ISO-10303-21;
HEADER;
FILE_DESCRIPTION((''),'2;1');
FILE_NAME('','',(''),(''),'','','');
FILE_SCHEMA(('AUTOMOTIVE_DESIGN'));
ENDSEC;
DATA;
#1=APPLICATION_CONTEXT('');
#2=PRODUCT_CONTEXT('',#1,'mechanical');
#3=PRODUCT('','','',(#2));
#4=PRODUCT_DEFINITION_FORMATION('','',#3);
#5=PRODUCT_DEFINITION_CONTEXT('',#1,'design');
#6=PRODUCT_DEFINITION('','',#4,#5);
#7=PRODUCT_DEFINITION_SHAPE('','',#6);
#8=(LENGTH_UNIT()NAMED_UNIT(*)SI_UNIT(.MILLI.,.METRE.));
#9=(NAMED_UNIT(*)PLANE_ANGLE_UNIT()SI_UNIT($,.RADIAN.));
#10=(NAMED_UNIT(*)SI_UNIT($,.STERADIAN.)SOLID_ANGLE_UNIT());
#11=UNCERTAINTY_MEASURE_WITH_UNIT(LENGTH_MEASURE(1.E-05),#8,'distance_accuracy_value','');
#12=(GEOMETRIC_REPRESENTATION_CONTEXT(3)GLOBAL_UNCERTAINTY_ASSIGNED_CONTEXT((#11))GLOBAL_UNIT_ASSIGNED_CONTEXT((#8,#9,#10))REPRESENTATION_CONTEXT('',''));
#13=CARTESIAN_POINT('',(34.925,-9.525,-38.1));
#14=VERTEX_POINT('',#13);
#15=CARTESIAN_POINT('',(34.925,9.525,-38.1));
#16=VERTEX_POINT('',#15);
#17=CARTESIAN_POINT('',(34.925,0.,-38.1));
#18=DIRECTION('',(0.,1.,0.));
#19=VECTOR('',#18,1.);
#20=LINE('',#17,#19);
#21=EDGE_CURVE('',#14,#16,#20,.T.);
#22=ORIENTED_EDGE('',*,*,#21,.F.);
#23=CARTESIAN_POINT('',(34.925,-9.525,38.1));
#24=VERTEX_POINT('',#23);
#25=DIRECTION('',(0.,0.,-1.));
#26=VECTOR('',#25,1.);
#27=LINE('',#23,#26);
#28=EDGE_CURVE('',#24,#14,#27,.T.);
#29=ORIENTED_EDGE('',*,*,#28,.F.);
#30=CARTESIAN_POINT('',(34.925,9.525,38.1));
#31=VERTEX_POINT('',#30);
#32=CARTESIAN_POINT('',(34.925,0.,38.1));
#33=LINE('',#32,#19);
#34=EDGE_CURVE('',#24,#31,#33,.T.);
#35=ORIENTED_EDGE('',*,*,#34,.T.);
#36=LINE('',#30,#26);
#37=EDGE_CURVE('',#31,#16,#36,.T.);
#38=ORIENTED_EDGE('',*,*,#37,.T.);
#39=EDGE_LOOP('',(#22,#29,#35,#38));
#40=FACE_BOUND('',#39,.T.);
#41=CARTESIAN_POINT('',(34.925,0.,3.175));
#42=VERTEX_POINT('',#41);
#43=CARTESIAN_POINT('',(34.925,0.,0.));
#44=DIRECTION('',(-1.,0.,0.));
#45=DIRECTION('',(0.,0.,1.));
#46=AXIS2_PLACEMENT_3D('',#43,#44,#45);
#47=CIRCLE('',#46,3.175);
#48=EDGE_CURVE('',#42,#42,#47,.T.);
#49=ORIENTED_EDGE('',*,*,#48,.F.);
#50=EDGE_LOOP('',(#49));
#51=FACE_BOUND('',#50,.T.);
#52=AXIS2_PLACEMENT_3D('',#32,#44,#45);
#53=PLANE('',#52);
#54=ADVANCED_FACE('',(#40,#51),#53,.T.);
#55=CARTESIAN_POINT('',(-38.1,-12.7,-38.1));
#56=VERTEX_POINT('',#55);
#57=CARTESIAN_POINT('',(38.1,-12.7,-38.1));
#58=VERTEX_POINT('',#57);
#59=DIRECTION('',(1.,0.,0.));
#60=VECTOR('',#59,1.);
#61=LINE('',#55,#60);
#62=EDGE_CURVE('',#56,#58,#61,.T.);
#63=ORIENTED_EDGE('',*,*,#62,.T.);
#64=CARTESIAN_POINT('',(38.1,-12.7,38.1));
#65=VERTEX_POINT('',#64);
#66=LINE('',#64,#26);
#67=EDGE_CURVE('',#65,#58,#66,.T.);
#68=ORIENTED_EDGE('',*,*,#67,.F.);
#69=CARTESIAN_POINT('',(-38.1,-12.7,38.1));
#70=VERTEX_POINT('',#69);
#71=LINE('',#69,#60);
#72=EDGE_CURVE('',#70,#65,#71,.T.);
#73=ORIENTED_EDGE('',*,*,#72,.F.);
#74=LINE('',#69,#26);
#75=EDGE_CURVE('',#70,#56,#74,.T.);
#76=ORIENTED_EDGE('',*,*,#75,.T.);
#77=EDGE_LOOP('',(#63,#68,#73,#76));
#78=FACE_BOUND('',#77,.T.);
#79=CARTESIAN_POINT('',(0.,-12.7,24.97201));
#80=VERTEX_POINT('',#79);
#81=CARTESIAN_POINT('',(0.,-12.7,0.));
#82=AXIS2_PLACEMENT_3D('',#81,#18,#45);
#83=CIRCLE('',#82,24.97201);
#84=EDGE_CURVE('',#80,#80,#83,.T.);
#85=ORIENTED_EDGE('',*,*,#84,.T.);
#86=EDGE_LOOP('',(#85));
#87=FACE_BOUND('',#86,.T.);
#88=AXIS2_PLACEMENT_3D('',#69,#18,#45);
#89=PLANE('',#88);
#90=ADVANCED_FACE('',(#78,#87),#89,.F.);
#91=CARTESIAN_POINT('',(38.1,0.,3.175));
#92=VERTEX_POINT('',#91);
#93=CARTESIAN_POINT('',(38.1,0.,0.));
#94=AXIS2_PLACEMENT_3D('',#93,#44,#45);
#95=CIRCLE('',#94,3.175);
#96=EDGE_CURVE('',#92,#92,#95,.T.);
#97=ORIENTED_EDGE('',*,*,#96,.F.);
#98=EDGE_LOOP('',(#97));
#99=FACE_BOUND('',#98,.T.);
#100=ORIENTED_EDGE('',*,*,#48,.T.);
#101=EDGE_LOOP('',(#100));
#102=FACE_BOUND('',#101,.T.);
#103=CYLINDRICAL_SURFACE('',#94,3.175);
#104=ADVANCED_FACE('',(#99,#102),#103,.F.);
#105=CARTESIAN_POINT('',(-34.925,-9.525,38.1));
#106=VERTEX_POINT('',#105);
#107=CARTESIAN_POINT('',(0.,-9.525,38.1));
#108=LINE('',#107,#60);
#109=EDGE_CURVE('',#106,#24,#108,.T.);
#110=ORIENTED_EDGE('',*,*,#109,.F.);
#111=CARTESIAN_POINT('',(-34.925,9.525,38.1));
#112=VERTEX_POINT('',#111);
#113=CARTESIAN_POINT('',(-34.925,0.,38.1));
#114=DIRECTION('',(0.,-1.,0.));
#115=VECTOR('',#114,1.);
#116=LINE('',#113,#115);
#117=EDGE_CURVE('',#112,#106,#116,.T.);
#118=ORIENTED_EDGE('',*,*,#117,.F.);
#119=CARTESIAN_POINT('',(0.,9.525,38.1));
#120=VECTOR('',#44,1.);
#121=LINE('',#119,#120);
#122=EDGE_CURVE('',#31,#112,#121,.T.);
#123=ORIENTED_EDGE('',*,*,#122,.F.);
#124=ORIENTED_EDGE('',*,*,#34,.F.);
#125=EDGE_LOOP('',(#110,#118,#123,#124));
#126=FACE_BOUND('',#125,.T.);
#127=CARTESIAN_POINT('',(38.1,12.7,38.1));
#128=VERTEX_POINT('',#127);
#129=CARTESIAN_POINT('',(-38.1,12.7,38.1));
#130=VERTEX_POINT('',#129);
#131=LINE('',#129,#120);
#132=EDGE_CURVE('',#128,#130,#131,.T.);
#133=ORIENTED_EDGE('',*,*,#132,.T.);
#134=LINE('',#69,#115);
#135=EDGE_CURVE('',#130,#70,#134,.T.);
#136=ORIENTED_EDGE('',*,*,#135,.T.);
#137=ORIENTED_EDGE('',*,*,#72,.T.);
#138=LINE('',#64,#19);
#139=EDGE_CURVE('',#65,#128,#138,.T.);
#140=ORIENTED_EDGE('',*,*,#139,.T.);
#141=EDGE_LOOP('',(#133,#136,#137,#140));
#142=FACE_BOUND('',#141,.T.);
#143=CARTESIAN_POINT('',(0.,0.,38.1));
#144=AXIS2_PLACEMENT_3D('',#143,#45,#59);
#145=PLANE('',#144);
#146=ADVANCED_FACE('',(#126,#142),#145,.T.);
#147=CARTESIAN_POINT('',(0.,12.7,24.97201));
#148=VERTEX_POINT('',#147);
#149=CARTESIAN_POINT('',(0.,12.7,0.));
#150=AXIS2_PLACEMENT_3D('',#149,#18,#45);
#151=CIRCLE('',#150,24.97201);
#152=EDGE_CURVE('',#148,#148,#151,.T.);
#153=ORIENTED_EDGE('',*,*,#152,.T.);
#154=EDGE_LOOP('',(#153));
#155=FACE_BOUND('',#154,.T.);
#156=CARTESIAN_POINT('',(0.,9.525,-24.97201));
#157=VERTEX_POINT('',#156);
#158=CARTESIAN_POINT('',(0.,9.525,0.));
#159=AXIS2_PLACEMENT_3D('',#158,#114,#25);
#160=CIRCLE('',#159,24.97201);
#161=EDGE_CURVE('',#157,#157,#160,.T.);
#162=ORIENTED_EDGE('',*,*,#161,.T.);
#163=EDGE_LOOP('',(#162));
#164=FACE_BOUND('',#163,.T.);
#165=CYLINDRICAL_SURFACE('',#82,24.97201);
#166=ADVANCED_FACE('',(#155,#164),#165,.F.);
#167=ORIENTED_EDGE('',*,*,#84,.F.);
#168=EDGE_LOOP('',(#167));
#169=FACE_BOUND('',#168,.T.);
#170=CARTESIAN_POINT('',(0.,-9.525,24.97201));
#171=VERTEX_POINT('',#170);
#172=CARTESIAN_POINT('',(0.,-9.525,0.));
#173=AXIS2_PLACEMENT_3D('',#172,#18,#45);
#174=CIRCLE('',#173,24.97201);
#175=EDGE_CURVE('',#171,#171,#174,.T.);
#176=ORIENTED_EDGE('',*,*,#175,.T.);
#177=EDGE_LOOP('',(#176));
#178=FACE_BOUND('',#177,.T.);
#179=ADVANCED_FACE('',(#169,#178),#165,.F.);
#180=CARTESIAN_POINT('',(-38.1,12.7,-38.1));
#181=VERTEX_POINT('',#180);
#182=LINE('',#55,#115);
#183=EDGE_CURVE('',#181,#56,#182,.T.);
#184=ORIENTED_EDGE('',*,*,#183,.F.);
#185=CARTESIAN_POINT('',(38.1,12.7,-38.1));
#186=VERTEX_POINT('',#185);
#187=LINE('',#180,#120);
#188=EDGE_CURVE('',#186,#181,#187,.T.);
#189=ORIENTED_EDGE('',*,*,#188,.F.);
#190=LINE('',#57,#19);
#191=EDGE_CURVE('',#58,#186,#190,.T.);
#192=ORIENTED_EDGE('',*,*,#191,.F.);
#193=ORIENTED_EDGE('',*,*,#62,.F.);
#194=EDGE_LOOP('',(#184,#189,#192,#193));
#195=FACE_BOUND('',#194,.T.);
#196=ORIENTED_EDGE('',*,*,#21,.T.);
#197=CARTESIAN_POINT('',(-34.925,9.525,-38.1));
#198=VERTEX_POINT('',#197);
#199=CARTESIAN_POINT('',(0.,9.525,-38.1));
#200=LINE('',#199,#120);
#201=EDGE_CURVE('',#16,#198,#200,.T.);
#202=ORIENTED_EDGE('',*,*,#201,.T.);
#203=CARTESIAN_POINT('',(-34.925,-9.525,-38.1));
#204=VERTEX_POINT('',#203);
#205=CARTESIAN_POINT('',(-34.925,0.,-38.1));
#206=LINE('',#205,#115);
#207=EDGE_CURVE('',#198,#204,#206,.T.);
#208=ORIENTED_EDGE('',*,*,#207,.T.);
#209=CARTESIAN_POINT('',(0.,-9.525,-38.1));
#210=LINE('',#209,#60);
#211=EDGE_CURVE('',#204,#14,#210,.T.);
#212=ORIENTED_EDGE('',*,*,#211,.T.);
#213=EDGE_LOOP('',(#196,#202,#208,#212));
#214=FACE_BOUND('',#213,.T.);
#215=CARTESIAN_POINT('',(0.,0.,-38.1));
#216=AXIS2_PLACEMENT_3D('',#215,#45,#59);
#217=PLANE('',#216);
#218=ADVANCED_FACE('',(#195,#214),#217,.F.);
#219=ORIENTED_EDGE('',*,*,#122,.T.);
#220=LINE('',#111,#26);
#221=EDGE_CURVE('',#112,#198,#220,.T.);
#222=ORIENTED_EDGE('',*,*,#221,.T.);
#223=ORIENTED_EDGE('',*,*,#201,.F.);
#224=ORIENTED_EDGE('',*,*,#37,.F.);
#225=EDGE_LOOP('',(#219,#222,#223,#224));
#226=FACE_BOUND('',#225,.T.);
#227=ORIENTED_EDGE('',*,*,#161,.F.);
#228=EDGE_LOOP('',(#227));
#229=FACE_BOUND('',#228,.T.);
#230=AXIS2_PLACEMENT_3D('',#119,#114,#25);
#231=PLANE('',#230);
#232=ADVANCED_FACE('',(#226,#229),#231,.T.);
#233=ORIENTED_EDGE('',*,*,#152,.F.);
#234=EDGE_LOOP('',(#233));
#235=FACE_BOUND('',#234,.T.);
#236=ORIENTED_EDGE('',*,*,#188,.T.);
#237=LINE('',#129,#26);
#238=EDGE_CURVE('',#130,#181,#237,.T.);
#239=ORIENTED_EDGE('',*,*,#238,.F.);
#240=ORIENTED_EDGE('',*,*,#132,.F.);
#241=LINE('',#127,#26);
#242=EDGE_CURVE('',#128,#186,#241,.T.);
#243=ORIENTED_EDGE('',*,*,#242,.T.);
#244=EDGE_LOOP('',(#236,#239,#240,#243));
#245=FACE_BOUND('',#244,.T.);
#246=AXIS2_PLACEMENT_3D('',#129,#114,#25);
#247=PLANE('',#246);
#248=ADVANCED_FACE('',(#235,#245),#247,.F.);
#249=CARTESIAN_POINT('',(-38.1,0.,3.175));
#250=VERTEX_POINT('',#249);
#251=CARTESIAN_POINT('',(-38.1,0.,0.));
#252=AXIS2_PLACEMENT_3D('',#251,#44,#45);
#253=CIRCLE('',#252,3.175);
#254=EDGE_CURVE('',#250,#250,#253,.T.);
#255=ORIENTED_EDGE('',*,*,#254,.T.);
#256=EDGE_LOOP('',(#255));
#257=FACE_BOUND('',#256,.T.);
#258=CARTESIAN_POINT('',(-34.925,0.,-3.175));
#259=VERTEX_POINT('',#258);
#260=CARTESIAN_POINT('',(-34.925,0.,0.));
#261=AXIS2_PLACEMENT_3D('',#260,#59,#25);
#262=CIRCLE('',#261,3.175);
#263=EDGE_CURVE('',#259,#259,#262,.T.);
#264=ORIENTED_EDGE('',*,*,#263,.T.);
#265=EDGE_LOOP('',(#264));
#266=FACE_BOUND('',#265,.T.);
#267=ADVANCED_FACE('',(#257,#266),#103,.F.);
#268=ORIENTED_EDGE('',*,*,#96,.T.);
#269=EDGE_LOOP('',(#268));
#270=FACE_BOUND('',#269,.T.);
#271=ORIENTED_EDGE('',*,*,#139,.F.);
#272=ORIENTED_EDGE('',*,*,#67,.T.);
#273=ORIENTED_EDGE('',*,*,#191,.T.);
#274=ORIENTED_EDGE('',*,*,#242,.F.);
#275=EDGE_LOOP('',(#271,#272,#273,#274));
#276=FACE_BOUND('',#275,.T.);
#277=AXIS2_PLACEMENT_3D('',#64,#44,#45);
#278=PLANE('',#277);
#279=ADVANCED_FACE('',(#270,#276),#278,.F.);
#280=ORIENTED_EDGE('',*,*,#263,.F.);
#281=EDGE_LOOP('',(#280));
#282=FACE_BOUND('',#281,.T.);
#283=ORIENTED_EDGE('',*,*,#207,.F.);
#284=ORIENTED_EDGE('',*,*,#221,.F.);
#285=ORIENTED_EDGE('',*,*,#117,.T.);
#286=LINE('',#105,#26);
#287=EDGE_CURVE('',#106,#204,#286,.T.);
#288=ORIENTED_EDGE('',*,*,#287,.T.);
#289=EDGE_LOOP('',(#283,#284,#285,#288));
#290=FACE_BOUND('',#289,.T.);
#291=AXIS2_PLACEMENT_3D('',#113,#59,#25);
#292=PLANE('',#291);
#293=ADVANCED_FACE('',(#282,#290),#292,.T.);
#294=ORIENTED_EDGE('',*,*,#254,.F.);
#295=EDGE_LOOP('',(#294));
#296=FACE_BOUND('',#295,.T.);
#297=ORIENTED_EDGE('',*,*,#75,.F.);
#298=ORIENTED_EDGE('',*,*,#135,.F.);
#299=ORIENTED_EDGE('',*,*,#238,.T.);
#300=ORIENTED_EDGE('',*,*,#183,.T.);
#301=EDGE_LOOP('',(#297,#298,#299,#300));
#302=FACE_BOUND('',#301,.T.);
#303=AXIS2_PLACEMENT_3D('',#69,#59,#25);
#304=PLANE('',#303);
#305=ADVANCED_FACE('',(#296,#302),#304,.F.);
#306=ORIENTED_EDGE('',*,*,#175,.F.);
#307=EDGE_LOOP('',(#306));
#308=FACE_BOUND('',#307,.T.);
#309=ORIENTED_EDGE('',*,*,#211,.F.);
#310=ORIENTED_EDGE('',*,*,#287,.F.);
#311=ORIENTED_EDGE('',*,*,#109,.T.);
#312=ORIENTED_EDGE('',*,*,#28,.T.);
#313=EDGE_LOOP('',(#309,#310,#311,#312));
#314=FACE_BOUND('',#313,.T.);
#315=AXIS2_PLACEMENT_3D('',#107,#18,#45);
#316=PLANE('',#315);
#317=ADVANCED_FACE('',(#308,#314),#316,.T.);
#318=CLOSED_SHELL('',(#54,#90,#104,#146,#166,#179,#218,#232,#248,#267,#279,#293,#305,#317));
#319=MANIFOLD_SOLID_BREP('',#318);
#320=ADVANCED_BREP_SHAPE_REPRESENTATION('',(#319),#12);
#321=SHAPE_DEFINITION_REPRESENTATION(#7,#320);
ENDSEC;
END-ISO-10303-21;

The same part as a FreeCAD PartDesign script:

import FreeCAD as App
import Part
import Sketcher

V = App.Vector
Q = App.Units.Quantity


def add_polygon(sketch, points):
    """Adds a closed chain of lines whose ends are joined by coincident constraints."""
    first, n = sketch.GeometryCount, len(points)
    for a, b in zip(points, points[1:] + points[:1]):
        sketch.addGeometry(Part.LineSegment(App.Vector(*a, 0), App.Vector(*b, 0)), False)
    for i in range(n):
        sketch.addConstraint(Sketcher.Constraint("Coincident", first + i, 2, first + (i + 1) % n, 1))

doc = App.newDocument("Part")
body = doc.addObject("PartDesign::Body", "Body")

# Sketch on XY plane
sketch1 = doc.addObject("Sketcher::SketchObject", "Sketch")
body.addObject(sketch1)
sketch1.AttachmentSupport = (doc.XY_Plane, [""])
sketch1.MapMode = "FlatFace"
add_polygon(sketch1, [(-38, 13), (-38, -13), (38, -13), (38, 13)])  # lines 0-3
add_polygon(sketch1, [(35, -10), (-35, -10), (-35, 10), (35, 10)])  # lines 4-7
sketch1.addConstraint([
    Sketcher.Constraint("Vertical", 0),
    Sketcher.Constraint("Horizontal", 1),
    Sketcher.Constraint("Vertical", 2),
    Sketcher.Constraint("Horizontal", 3),
    Sketcher.Constraint("Horizontal", 4),
    Sketcher.Constraint("Vertical", 5),
    Sketcher.Constraint("Horizontal", 6),
    Sketcher.Constraint("Vertical", 7),
    Sketcher.Constraint("Symmetric", 0, 2, 2, 2, -1, 1),
    Sketcher.Constraint("Symmetric", 4, 2, 6, 2, -1, 1),
    Sketcher.Constraint("DistanceX", 1, 1, 1, 2, Q("3 in")),
    Sketcher.Constraint("DistanceY", 0, 2, 0, 1, Q("1 in")),
    Sketcher.Constraint("DistanceX", 4, 2, 4, 1, Q("2.75 in")),
    Sketcher.Constraint("DistanceY", 5, 1, 5, 2, Q("0.75 in")),
])
pad1 = doc.addObject("PartDesign::Pad", "Pad")
body.addObject(pad1)
pad1.Profile = sketch1
pad1.Length = Q("3 in")
pad1.Midplane = True

# Sketch on YZ plane
sketch2 = doc.addObject("Sketcher::SketchObject", "Sketch001")
body.addObject(sketch2)
sketch2.AttachmentSupport = (doc.YZ_Plane, [""])
sketch2.MapMode = "FlatFace"
sketch2.AttachmentOffset = App.Placement(V(0, 0, -1.5 * 25.4), App.Rotation())
sketch2.addGeometry(Part.Circle(V(0, 0, 0), V(0, 0, 1), 3.2), False)
sketch2.addConstraint([
    Sketcher.Constraint("Coincident", 0, 3, -1, 1),
    Sketcher.Constraint("Diameter", 0, Q("0.25 in")),
])
pocket1 = doc.addObject("PartDesign::Pocket", "Pocket")
body.addObject(pocket1)
pocket1.Profile = sketch2
pocket1.Type = "ThroughAll"
pocket1.Reversed = True

# Sketch on XZ plane
sketch3 = doc.addObject("Sketcher::SketchObject", "Sketch002")
body.addObject(sketch3)
sketch3.AttachmentSupport = (doc.XZ_Plane, [""])
sketch3.MapMode = "FlatFace"
sketch3.AttachmentOffset = App.Placement(V(0, 0, -0.5 * 25.4), App.Rotation())
sketch3.addGeometry(Part.Circle(V(0, 0, 0), V(0, 0, 1), 25), False)
sketch3.addConstraint([
    Sketcher.Constraint("Coincident", 0, 3, -1, 1),
    Sketcher.Constraint("Diameter", 0, Q("1.9663 in")),
])
pocket2 = doc.addObject("PartDesign::Pocket", "Pocket001")
body.addObject(pocket2)
pocket2.Profile = sketch3
pocket2.Type = "ThroughAll"
pocket2.Reversed = True

doc.recompute()
